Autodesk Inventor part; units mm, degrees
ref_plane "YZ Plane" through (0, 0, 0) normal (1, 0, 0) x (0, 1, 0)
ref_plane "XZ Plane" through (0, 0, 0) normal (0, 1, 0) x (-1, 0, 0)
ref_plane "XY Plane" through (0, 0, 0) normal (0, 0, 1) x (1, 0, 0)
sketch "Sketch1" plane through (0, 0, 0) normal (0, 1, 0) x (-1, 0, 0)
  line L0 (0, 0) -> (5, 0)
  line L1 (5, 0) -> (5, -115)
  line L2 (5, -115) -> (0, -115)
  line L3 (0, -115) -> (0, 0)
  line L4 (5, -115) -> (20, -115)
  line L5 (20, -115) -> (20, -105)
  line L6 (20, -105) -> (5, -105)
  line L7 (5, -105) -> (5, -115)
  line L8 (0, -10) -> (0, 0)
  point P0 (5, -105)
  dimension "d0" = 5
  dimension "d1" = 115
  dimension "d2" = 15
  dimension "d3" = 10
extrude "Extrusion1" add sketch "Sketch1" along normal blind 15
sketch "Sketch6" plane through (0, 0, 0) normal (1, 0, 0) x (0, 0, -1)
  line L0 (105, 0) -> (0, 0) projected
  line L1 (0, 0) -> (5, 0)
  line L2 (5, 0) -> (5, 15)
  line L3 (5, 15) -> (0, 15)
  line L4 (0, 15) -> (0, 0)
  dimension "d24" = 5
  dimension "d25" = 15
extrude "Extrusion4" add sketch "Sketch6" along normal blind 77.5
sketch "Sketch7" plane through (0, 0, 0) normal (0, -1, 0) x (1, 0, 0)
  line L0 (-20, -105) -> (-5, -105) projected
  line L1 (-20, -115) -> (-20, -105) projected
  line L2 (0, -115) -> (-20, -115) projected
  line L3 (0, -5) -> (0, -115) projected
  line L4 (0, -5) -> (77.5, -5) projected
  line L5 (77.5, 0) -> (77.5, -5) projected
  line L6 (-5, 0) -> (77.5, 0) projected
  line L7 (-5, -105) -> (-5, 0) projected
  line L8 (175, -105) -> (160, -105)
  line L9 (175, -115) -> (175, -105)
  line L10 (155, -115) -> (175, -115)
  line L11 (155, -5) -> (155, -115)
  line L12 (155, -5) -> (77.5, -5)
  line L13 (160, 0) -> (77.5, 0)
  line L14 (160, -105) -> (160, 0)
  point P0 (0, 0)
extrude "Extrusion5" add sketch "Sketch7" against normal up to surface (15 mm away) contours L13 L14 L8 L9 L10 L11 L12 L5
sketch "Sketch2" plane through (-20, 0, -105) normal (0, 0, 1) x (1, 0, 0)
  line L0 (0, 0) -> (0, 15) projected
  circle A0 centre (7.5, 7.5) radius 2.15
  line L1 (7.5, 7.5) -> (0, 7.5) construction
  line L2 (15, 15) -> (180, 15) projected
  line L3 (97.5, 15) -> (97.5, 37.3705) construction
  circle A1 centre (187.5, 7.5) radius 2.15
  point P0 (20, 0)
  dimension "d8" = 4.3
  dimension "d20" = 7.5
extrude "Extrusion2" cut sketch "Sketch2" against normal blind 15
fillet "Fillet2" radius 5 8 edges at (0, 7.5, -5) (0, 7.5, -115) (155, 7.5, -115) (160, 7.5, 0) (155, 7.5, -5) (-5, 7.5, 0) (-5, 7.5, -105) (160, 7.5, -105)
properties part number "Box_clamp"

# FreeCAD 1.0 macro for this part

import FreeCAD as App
import Part
import Sketcher
Q = App.Units.Quantity


def edges_at(feature, points):
    """Names of the edges that pass closest to the given points."""
    edges = feature.Shape.Edges
    near = lambda p: min(range(len(edges)), key=lambda i: edges[i].distToShape(Part.Vertex(*p))[0])
    return sorted({f"Edge{near(p) + 1}" for p in points})

doc = App.newDocument("Part")
body = doc.addObject("PartDesign::Body", "Body")

# Sketch on XZ plane
sketch1 = body.newObject("Sketcher::SketchObject", "Sketch")
sketch1.AttachmentSupport = (doc.getObject("XZ_Plane"), [""])
sketch1.MapMode = "FlatFace"
sketch1.addGeometry(Part.LineSegment(App.Vector(-5, 0, 0), App.Vector(0, 0, 0)), False)
sketch1.addGeometry(Part.LineSegment(App.Vector(0, 0, 0), App.Vector(0, -115, 0)), False)
sketch1.addGeometry(Part.LineSegment(App.Vector(0, -115, 0), App.Vector(-20, -115, 0)), False)
sketch1.addGeometry(Part.LineSegment(App.Vector(-20, -115, 0), App.Vector(-20, -105, 0)), False)
sketch1.addGeometry(Part.LineSegment(App.Vector(-20, -105, 0), App.Vector(-5, -105, 0)), False)
sketch1.addGeometry(Part.LineSegment(App.Vector(-5, -105, 0), App.Vector(-5, 0, 0)), False)
sketch1.addConstraint(Sketcher.Constraint("Coincident", 0, 2, 1, 1))
sketch1.addConstraint(Sketcher.Constraint("Coincident", 1, 2, 2, 1))
sketch1.addConstraint(Sketcher.Constraint("Coincident", 2, 2, 3, 1))
sketch1.addConstraint(Sketcher.Constraint("Coincident", 3, 2, 4, 1))
sketch1.addConstraint(Sketcher.Constraint("Coincident", 4, 2, 5, 1))
sketch1.addConstraint(Sketcher.Constraint("Coincident", 5, 2, 0, 1))
sketch1.addConstraint(Sketcher.Constraint("Horizontal", 0))
sketch1.addConstraint(Sketcher.Constraint("Vertical", 1))
sketch1.addConstraint(Sketcher.Constraint("Horizontal", 2))
sketch1.addConstraint(Sketcher.Constraint("Vertical", 3))
sketch1.addConstraint(Sketcher.Constraint("Horizontal", 4))
sketch1.addConstraint(Sketcher.Constraint("Vertical", 5))
sketch1.addConstraint(Sketcher.Constraint("Coincident", 0, 2, -1, 1))
sketch1.addConstraint(Sketcher.Constraint("DistanceX", 0, 1, 0, 2, Q("5 mm")))
sketch1.addConstraint(Sketcher.Constraint("DistanceX", 4, 1, 4, 2, Q("15 mm")))
sketch1.addConstraint(Sketcher.Constraint("DistanceY", 1, 2, 1, 1, Q("115 mm")))
sketch1.addConstraint(Sketcher.Constraint("DistanceY", 3, 1, 3, 2, Q("10 mm")))
pad1 = body.newObject("PartDesign::Pad", "Pad")
pad1.Profile = sketch1
pad1.Length = 15
pad1.Reversed = True

# Sketch on YZ plane
sketch2 = body.newObject("Sketcher::SketchObject", "Sketch001")
sketch2.AttachmentSupport = (doc.getObject("YZ_Plane"), [""])
sketch2.MapMode = "FlatFace"
sketch2.addGeometry(Part.LineSegment(App.Vector(0, 0, 0), App.Vector(0, -5, 0)), False)
sketch2.addGeometry(Part.LineSegment(App.Vector(0, -5, 0), App.Vector(15, -5, 0)), False)
sketch2.addGeometry(Part.LineSegment(App.Vector(15, -5, 0), App.Vector(15, 0, 0)), False)
sketch2.addGeometry(Part.LineSegment(App.Vector(15, 0, 0), App.Vector(0, 0, 0)), False)
sketch2.addConstraint(Sketcher.Constraint("Coincident", 0, 2, 1, 1))
sketch2.addConstraint(Sketcher.Constraint("Coincident", 1, 2, 2, 1))
sketch2.addConstraint(Sketcher.Constraint("Coincident", 2, 2, 3, 1))
sketch2.addConstraint(Sketcher.Constraint("Coincident", 3, 2, 0, 1))
sketch2.addConstraint(Sketcher.Constraint("Vertical", 0))
sketch2.addConstraint(Sketcher.Constraint("Horizontal", 1))
sketch2.addConstraint(Sketcher.Constraint("Vertical", 2))
sketch2.addConstraint(Sketcher.Constraint("Horizontal", 3))
sketch2.addConstraint(Sketcher.Constraint("Coincident", 3, 2, -1, 1))
sketch2.addConstraint(Sketcher.Constraint("DistanceX", 1, 1, 1, 2, Q("15 mm")))
sketch2.addConstraint(Sketcher.Constraint("DistanceY", 0, 2, 0, 1, Q("5 mm")))
pad2 = body.newObject("PartDesign::Pad", "Pad001")
pad2.Profile = sketch2
pad2.Length = 77.5

# Sketch on XZ plane
sketch3 = body.newObject("Sketcher::SketchObject", "Sketch002")
sketch3.AttachmentSupport = (doc.getObject("XZ_Plane"), [""])
sketch3.MapMode = "FlatFace"
sketch3.addGeometry(Part.LineSegment(App.Vector(160, 0, 0), App.Vector(77.5, 0, 0)), False)
sketch3.addGeometry(Part.LineSegment(App.Vector(77.5, 0, 0), App.Vector(77.5, -5, 0)), False)
sketch3.addGeometry(Part.LineSegment(App.Vector(77.5, -5, 0), App.Vector(155, -5, 0)), False)
sketch3.addGeometry(Part.LineSegment(App.Vector(155, -5, 0), App.Vector(155, -115, 0)), False)
sketch3.addGeometry(Part.LineSegment(App.Vector(155, -115, 0), App.Vector(175, -115, 0)), False)
sketch3.addGeometry(Part.LineSegment(App.Vector(175, -115, 0), App.Vector(175, -105, 0)), False)
sketch3.addGeometry(Part.LineSegment(App.Vector(175, -105, 0), App.Vector(160, -105, 0)), False)
sketch3.addGeometry(Part.LineSegment(App.Vector(160, -105, 0), App.Vector(160, 0, 0)), False)
sketch3.addConstraint(Sketcher.Constraint("Coincident", 0, 2, 1, 1))
sketch3.addConstraint(Sketcher.Constraint("Coincident", 1, 2, 2, 1))
sketch3.addConstraint(Sketcher.Constraint("Coincident", 2, 2, 3, 1))
sketch3.addConstraint(Sketcher.Constraint("Coincident", 3, 2, 4, 1))
sketch3.addConstraint(Sketcher.Constraint("Coincident", 4, 2, 5, 1))
sketch3.addConstraint(Sketcher.Constraint("Coincident", 5, 2, 6, 1))
sketch3.addConstraint(Sketcher.Constraint("Coincident", 6, 2, 7, 1))
sketch3.addConstraint(Sketcher.Constraint("Coincident", 7, 2, 0, 1))
sketch3.addConstraint(Sketcher.Constraint("Horizontal", 0))
sketch3.addConstraint(Sketcher.Constraint("Vertical", 1))
sketch3.addConstraint(Sketcher.Constraint("Horizontal", 2))
sketch3.addConstraint(Sketcher.Constraint("Vertical", 3))
sketch3.addConstraint(Sketcher.Constraint("Horizontal", 4))
sketch3.addConstraint(Sketcher.Constraint("Vertical", 5))
sketch3.addConstraint(Sketcher.Constraint("Horizontal", 6))
sketch3.addConstraint(Sketcher.Constraint("Vertical", 7))
sketch3.addConstraint(Sketcher.Constraint("PointOnObject", 0, 2, -1))
sketch3.addConstraint(Sketcher.Constraint("DistanceX", 4, 1, 4, 2, Q("20 mm")))
sketch3.addConstraint(Sketcher.Constraint("DistanceX", 6, 2, 6, 1, Q("15 mm")))
sketch3.addConstraint(Sketcher.Constraint("DistanceY", 1, 2, 1, 1, Q("5 mm")))
sketch3.addConstraint(Sketcher.Constraint("DistanceY", 3, 2, 3, 1, Q("110 mm")))
sketch3.addConstraint(Sketcher.Constraint("DistanceY", 5, 1, 5, 2, Q("10 mm")))
sketch3.addConstraint(Sketcher.Constraint("DistanceX", 0, 2, 0, 1, Q("82.5 mm")))
sketch3.addConstraint(Sketcher.Constraint("DistanceX", -1, 1, 2, 2, Q("155 mm")))
pad3 = body.newObject("PartDesign::Pad", "Pad002")
pad3.Profile = sketch3
pad3.Length = 15
pad3.Reversed = True

# Sketch on XY plane
sketch4 = body.newObject("Sketcher::SketchObject", "Sketch003")
sketch4.AttachmentSupport = (doc.getObject("XY_Plane"), [""])
sketch4.MapMode = "FlatFace"
sketch4.AttachmentOffset = App.Placement(App.Vector(0, 0, -105), App.Rotation())
sketch4.addGeometry(Part.Circle(App.Vector(-12.5, 7.5, 0), App.Vector(0, 0, 1), 2.15), False)
sketch4.addGeometry(Part.Circle(App.Vector(167.5, 7.5, 0), App.Vector(0, 0, 1), 2.15), False)
sketch4.addConstraint(Sketcher.Constraint("Equal", 0, 1))
sketch4.addConstraint(Sketcher.Constraint("Horizontal", 0, 3, 1, 3))
sketch4.addConstraint(Sketcher.Constraint("Diameter", 0, Q("4.3 mm")))
sketch4.addConstraint(Sketcher.Constraint("DistanceY", -1, 1, 0, 3, Q("7.5 mm")))
sketch4.addConstraint(Sketcher.Constraint("DistanceX", 0, 3, 1, 3, Q("180 mm")))
sketch4.addConstraint(Sketcher.Constraint("DistanceX", 0, 3, -1, 1, Q("12.5 mm")))
pocket1 = body.newObject("PartDesign::Pocket", "Pocket")
pocket1.Profile = sketch4
pocket1.Length = 15
doc.recompute()

fillet = body.newObject("PartDesign::Fillet", "Fillet")
fillet.Base = (pocket1, edges_at(pocket1, [
    (0, 7.5, -5),
    (0, 7.5, -115),
    (155, 7.5, -115),
    (160, 7.5, 0),
    (155, 7.5, -5),
    (-5, 7.5, 0),
    (-5, 7.5, -105),
    (160, 7.5, -105),
]))
fillet.Radius = 5

doc.recompute()
